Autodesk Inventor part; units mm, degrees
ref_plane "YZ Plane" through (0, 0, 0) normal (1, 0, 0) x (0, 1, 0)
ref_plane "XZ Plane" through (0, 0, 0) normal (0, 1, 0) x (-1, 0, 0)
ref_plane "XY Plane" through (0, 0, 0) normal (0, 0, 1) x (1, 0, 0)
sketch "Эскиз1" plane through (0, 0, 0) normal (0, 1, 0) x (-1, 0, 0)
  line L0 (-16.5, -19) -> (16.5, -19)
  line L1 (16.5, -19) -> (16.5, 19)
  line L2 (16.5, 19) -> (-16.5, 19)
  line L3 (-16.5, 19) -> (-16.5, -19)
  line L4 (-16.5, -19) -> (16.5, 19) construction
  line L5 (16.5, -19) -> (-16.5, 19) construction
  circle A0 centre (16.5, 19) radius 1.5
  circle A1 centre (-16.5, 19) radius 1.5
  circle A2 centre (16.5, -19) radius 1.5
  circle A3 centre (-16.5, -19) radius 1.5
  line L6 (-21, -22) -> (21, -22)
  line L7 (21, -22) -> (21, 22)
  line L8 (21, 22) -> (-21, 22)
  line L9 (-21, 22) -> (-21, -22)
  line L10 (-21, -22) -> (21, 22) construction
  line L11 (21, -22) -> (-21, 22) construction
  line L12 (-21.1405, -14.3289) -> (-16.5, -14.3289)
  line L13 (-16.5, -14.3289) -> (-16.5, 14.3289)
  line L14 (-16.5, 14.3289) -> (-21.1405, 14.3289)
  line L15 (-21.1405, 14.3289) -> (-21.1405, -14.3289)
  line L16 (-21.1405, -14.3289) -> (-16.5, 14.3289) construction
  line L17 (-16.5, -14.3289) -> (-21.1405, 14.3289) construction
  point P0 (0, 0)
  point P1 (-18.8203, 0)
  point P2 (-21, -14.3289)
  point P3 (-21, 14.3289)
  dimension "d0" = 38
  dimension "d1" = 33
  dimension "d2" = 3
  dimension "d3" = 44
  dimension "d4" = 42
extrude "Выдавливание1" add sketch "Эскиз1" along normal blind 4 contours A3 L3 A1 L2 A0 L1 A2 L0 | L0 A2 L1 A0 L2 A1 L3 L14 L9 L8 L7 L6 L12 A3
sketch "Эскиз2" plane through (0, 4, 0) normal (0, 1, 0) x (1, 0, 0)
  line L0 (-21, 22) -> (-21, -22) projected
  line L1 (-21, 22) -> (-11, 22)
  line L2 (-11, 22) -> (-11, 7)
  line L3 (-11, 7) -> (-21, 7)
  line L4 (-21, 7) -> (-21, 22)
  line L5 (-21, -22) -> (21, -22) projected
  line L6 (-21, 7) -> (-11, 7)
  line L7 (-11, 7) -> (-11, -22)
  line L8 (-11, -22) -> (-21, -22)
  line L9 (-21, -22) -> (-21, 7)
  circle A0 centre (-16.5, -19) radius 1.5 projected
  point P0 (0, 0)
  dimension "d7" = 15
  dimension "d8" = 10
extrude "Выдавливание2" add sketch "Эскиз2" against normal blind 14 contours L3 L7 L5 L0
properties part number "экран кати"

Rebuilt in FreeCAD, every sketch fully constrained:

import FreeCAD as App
import Part
import Sketcher
from FreeCAD import Vector
Q = App.Units.Quantity


def add_polygon(sketch, points):
    """Adds a closed chain of lines whose ends are joined by coincident constraints."""
    first, n = sketch.GeometryCount, len(points)
    for a, b in zip(points, points[1:] + points[:1]):
        sketch.addGeometry(Part.LineSegment(App.Vector(*a, 0), App.Vector(*b, 0)), False)
    for i in range(n):
        sketch.addConstraint(Sketcher.Constraint("Coincident", first + i, 2, first + (i + 1) % n, 1))

doc = App.newDocument("Part")
body = doc.addObject("PartDesign::Body", "Body")

sketch1 = doc.addObject("Sketcher::SketchObject", "Sketch")
body.addObject(sketch1)
sketch1.AttachmentSupport = (doc.XZ_Plane, [""])
sketch1.MapMode = "FlatFace"
add_polygon(sketch1, [(16.5, 14.3289), (16.5, -14.3289), (21, -14.3289), (21, -22), (-21, -22), (-21, 22), (21, 22), (21, 14.3289)])
sketch1.addGeometry(Part.Circle(Vector(16.5, -19, 0), Vector(0, 0, 1), 1.5), False)
sketch1.addGeometry(Part.Circle(Vector(16.5, 19, 0), Vector(0, 0, 1), 1.5), False)
sketch1.addGeometry(Part.Circle(Vector(-16.5, 19, 0), Vector(0, 0, 1), 1.5), False)
sketch1.addGeometry(Part.Circle(Vector(-16.5, -19, 0), Vector(0, 0, 1), 1.5), False)
sketch1.addConstraint([
    Sketcher.Constraint("Vertical", 0),
    Sketcher.Constraint("Horizontal", 1),
    Sketcher.Constraint("Vertical", 2),
    Sketcher.Constraint("Horizontal", 3),
    Sketcher.Constraint("Vertical", 4),
    Sketcher.Constraint("Horizontal", 5),
    Sketcher.Constraint("Vertical", 6),
    Sketcher.Constraint("Horizontal", 7),
    Sketcher.Constraint("Equal", 8, 9),
    Sketcher.Constraint("Equal", 9, 10),
    Sketcher.Constraint("Equal", 10, 11),
    Sketcher.Constraint("Symmetric", 8, 3, 10, 3, -1, 1),
    Sketcher.Constraint("Symmetric", 9, 3, 11, 3, -1, 1),
    Sketcher.Constraint("Symmetric", 2, 2, 4, 2, -1, 1),
    Sketcher.Constraint("Symmetric", 9, 3, 10, 3, -2),
    Sketcher.Constraint("Symmetric", 1, 2, 6, 2, -1),
    Sketcher.Constraint("Vertical", 9, 3, 0, 2),
    Sketcher.Constraint("Diameter", 8, Q("3 mm")),
    Sketcher.Constraint("DistanceX", 3, 2, 3, 1, Q("42 mm")),
    Sketcher.Constraint("DistanceY", 4, 1, 4, 2, Q("44 mm")),
    Sketcher.Constraint("DistanceY", 8, 3, 9, 3, Q("38 mm")),
    Sketcher.Constraint("DistanceX", 10, 3, 9, 3, Q("33 mm")),
    Sketcher.Constraint("DistanceY", 2, 2, 2, 1, Q("7.671 mm")),
])
pad1 = doc.addObject("PartDesign::Pad", "Pad")
body.addObject(pad1)
pad1.Profile = sketch1
pad1.Length = 4
pad1.Reversed = True

sketch2 = doc.addObject("Sketcher::SketchObject", "Sketch001")
body.addObject(sketch2)
sketch2.AttachmentSupport = (doc.XZ_Plane, [""])
sketch2.MapMode = "FlatFace"
sketch2.AttachmentOffset = App.Placement(Vector(0, 0, -4), App.Rotation())
add_polygon(sketch2, [(-11, -7), (-21, -7), (-21, 22), (-11, 22)])
sketch2.addGeometry(Part.Circle(Vector(-16.5, 19, 0), Vector(0, 0, 1), 1.5), False)
sketch2.addConstraint([
    Sketcher.Constraint("Horizontal", 0),
    Sketcher.Constraint("Vertical", 1),
    Sketcher.Constraint("Horizontal", 2),
    Sketcher.Constraint("Vertical", 3),
    Sketcher.Constraint("DistanceX", 0, 2, 0, 1, Q("10 mm")),
    Sketcher.Constraint("Diameter", 4, Q("3 mm")),
    Sketcher.Constraint("DistanceY", 1, 1, 1, 2, Q("29 mm")),
    Sketcher.Constraint("DistanceY", -1, 1, 4, 3, Q("19 mm")),
    Sketcher.Constraint("DistanceX", 0, 2, -1, 1, Q("21 mm")),
    Sketcher.Constraint("DistanceY", 0, 2, -1, 1, Q("7 mm")),
    Sketcher.Constraint("DistanceX", 4, 3, -1, 1, Q("16.5 mm")),
])
pad2 = doc.addObject("PartDesign::Pad", "Pad001")
body.addObject(pad2)
pad2.Profile = sketch2
pad2.Length = 14

doc.recompute()
